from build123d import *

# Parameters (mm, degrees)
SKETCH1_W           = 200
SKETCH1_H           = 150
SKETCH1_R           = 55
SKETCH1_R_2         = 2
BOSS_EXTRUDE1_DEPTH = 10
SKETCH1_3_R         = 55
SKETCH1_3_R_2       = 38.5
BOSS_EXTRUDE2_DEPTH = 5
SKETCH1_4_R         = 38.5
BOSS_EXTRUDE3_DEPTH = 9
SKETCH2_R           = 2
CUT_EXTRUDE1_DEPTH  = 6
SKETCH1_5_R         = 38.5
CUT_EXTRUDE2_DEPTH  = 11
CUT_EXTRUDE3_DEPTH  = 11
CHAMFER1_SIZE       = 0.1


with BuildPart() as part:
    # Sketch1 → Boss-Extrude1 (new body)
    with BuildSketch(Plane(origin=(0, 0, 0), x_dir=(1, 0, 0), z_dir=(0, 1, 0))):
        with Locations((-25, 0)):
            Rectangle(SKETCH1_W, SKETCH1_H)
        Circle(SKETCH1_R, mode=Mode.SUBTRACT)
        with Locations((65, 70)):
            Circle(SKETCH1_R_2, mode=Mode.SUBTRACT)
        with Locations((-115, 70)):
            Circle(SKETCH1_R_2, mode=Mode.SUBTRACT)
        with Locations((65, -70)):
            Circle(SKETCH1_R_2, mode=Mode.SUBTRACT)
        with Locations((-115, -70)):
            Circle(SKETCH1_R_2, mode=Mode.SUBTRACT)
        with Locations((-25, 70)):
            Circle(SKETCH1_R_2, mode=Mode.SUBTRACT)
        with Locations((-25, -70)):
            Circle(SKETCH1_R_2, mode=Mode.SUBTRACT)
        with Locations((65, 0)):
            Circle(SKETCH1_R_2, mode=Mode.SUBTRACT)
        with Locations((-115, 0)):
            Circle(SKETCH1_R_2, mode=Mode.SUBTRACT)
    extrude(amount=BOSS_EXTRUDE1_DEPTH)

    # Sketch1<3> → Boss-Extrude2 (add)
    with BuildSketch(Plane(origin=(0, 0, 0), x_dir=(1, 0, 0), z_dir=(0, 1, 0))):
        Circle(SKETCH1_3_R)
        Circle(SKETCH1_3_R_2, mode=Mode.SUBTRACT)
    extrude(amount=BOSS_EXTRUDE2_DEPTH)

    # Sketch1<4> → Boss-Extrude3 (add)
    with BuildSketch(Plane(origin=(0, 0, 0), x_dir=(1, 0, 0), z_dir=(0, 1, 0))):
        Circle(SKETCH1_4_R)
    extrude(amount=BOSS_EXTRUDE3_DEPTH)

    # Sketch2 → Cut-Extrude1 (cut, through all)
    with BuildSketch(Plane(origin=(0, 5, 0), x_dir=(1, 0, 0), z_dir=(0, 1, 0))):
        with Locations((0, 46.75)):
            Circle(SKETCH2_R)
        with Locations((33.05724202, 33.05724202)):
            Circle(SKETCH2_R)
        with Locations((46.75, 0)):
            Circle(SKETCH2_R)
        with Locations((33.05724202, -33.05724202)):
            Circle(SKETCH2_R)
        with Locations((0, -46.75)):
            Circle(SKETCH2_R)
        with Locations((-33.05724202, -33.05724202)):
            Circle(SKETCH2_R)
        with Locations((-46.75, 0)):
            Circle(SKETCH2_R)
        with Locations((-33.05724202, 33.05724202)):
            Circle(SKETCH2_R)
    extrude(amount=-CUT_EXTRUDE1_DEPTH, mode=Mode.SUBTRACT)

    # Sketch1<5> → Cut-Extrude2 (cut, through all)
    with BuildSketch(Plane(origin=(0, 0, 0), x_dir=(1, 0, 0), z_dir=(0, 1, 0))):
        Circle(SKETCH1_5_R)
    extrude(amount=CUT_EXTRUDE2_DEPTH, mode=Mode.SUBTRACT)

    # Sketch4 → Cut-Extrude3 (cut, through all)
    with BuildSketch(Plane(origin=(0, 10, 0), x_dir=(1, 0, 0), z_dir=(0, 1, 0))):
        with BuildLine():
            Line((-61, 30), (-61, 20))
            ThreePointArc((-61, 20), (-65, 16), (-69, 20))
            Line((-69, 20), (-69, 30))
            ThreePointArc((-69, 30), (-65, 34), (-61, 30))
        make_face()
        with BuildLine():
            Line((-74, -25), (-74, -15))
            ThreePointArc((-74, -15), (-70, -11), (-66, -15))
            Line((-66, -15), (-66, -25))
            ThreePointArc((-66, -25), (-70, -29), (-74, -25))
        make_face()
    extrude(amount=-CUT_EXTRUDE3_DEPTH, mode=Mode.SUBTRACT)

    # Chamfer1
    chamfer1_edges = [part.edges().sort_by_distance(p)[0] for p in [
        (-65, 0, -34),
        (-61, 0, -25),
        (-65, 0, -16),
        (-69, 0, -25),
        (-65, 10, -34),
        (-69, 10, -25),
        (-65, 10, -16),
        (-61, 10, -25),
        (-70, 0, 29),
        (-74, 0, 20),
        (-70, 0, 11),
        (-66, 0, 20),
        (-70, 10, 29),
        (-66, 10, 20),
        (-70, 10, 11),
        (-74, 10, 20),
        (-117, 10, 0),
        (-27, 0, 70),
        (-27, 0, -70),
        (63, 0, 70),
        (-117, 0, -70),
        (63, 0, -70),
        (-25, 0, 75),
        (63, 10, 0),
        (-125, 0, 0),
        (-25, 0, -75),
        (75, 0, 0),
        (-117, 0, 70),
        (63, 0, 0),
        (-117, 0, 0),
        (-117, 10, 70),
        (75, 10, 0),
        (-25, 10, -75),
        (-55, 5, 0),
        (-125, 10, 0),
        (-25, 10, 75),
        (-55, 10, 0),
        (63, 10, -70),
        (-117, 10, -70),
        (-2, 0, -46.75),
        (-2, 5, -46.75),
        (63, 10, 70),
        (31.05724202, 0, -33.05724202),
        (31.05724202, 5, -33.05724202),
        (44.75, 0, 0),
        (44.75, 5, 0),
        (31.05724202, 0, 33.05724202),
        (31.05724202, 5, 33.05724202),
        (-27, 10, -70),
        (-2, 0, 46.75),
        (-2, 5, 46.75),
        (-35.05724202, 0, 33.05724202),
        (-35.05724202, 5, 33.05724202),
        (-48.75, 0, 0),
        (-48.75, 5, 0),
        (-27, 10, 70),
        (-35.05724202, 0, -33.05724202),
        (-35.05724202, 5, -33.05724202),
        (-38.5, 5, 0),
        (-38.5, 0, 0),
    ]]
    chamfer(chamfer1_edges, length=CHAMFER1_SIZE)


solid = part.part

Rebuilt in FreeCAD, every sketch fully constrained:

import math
import FreeCAD as App
import Part
import Sketcher
from FreeCAD import Vector
Q = App.Units.Quantity


def edges_at(feature, points):
    """Names of the edges that pass closest to the given points."""
    edges = feature.Shape.Edges
    near = lambda p: min(range(len(edges)), key=lambda i: edges[i].distToShape(Part.Vertex(*p))[0])
    return sorted({f"Edge{near(p) + 1}" for p in points})


def add_polygon(sketch, points):
    """Adds a closed chain of lines whose ends are joined by coincident constraints."""
    first, n = sketch.GeometryCount, len(points)
    for a, b in zip(points, points[1:] + points[:1]):
        sketch.addGeometry(Part.LineSegment(App.Vector(*a, 0), App.Vector(*b, 0)), False)
    for i in range(n):
        sketch.addConstraint(Sketcher.Constraint("Coincident", first + i, 2, first + (i + 1) % n, 1))

doc = App.newDocument("Part")
params = doc.addObject("Spreadsheet::Sheet", "Params")
for row, (alias, value) in enumerate([
    ("sketch1_diameter", "4 mm"),
    ("sketch1_diameter2", "110 mm"),
    ("sketch1_width", "200 mm"),
    ("sketch1_height", "150 mm"),
    ("pad1_length", "10 mm"),
    ("sketch2_diameter", "110 mm"),
    ("sketch2_diameter2", "77 mm"),
    ("pad2_length", "5 mm"),
    ("sketch3_diameter", "77 mm"),
    ("pad3_length", "9 mm"),
    ("sketch4_diameter", "4 mm"),
    ("sketch5_diameter", "77 mm"),
    ("sketch6_radius", "4 mm"),
    ("sketch6_height", "10 mm"),
    ("chamfer_size", "0.1 mm"),
], start=1):
    params.set(f"A{row}", alias)
    params.set(f"B{row}", "=" + value)
    params.setAlias(f"B{row}", alias)

body = doc.addObject("PartDesign::Body", "Body")

# Sketch on XZ plane
sketch1 = body.newObject("Sketcher::SketchObject", "Sketch")
sketch1.AttachmentSupport = (doc.getObject("XZ_Plane"), [""])
sketch1.MapMode = "FlatFace"
add_polygon(sketch1, [(-125, -75), (-125, 75), (75, 75), (75, -75)])  # lines 0-3
sketch1.addGeometry(Part.Circle(Vector(-115, 70, 0), Vector(0, 0, 1), 2), False)  # 4
sketch1.addGeometry(Part.Circle(Vector(-25, 70, 0), Vector(0, 0, 1), 2), False)  # 5
sketch1.addGeometry(Part.Circle(Vector(65, 70, 0), Vector(0, 0, 1), 2), False)  # 6
sketch1.addGeometry(Part.Circle(Vector(-115, 0, 0), Vector(0, 0, 1), 2), False)  # 7
sketch1.addGeometry(Part.Circle(Vector(-115, -70, 0), Vector(0, 0, 1), 2), False)  # 8
sketch1.addGeometry(Part.Circle(Vector(0, 0, 0), Vector(0, 0, 1), 55), False)  # 9
sketch1.addGeometry(Part.Circle(Vector(65, 0, 0), Vector(0, 0, 1), 2), False)  # 10
sketch1.addGeometry(Part.Circle(Vector(-25, -70, 0), Vector(0, 0, 1), 2), False)  # 11
sketch1.addGeometry(Part.Circle(Vector(65, -70, 0), Vector(0, 0, 1), 2), False)  # 12
sketch1.addConstraint([
    Sketcher.Constraint("Vertical", 0),
    Sketcher.Constraint("Horizontal", 1),
    Sketcher.Constraint("Vertical", 2),
    Sketcher.Constraint("Horizontal", 3),
    Sketcher.Constraint("Coincident", 9, 3, -1, 1),
    Sketcher.Constraint("Equal", 4, 5),
    Sketcher.Constraint("Equal", 5, 6),
    Sketcher.Constraint("Equal", 6, 7),
    Sketcher.Constraint("Equal", 7, 8),
    Sketcher.Constraint("Equal", 8, 10),
    Sketcher.Constraint("Equal", 10, 11),
    Sketcher.Constraint("Equal", 11, 12),
    Sketcher.Constraint("Symmetric", 4, 3, 8, 3, -1),
    Sketcher.Constraint("Symmetric", 5, 3, 11, 3, -1),
    Sketcher.Constraint("Symmetric", 6, 3, 12, 3, -1),
    Sketcher.Constraint("PointOnObject", 7, 3, -1),
    Sketcher.Constraint("PointOnObject", 10, 3, -1),
    Sketcher.Constraint("Horizontal", 4, 3, 5, 3),
    Sketcher.Constraint("Horizontal", 5, 3, 6, 3),
    Sketcher.Constraint("Vertical", 4, 3, 7, 3),
    Sketcher.Constraint("Vertical", 6, 3, 10, 3),
    Sketcher.Constraint("Diameter", 4, Q("4 mm")),
    Sketcher.Constraint("Diameter", 9, Q("110 mm")),
    Sketcher.Constraint("DistanceX", 1, 1, 1, 2, Q("200 mm")),
    Sketcher.Constraint("DistanceY", 0, 1, 0, 2, Q("150 mm")),
    Sketcher.Constraint("DistanceX", 4, 3, -1, 1, Q("115 mm")),
    Sketcher.Constraint("DistanceY", -1, 1, 4, 3, Q("70 mm")),
    Sketcher.Constraint("DistanceX", 5, 3, -1, 1, Q("25 mm")),
    Sketcher.Constraint("DistanceX", -1, 1, 6, 3, Q("65 mm")),
    Sketcher.Constraint("DistanceX", 0, 2, -1, 1, Q("125 mm")),
    Sketcher.Constraint("DistanceY", -1, 1, 0, 2, Q("75 mm")),
])
sketch1.setExpression("Constraints[25]", "Params.sketch1_diameter")
sketch1.setExpression("Constraints[26]", "Params.sketch1_diameter2")
sketch1.setExpression("Constraints[27]", "Params.sketch1_width")
sketch1.setExpression("Constraints[28]", "Params.sketch1_height")
pad1 = body.newObject("PartDesign::Pad", "Pad")
pad1.Profile = sketch1
pad1.setExpression("Length", "Params.pad1_length")
pad1.Reversed = True

# Sketch on XZ plane
sketch2 = body.newObject("Sketcher::SketchObject", "Sketch001")
sketch2.AttachmentSupport = (doc.getObject("XZ_Plane"), [""])
sketch2.MapMode = "FlatFace"
sketch2.addGeometry([
    Part.Circle(Vector(0, 0, 0), Vector(0, 0, 1), 55),
    Part.Circle(Vector(0, 0, 0), Vector(0, 0, 1), 38),
], False)
sketch2.addConstraint([
    Sketcher.Constraint("Coincident", 0, 3, -1, 1),
    Sketcher.Constraint("Coincident", 1, 3, -1, 1),
    Sketcher.Constraint("Diameter", 0, Q("110 mm")),
    Sketcher.Constraint("Diameter", 1, Q("77 mm")),
])
sketch2.setExpression("Constraints[2]", "Params.sketch2_diameter")
sketch2.setExpression("Constraints[3]", "Params.sketch2_diameter2")
pad2 = body.newObject("PartDesign::Pad", "Pad001")
pad2.Profile = sketch2
pad2.setExpression("Length", "Params.pad2_length")
pad2.Reversed = True

# Sketch on XZ plane
sketch3 = body.newObject("Sketcher::SketchObject", "Sketch002")
sketch3.AttachmentSupport = (doc.getObject("XZ_Plane"), [""])
sketch3.MapMode = "FlatFace"
sketch3.addGeometry(Part.Circle(Vector(0, 0, 0), Vector(0, 0, 1), 38), False)
sketch3.addConstraint([
    Sketcher.Constraint("Coincident", 0, 3, -1, 1),
    Sketcher.Constraint("Diameter", 0, Q("77 mm")),
])
sketch3.setExpression("Constraints[1]", "Params.sketch3_diameter")
pad3 = body.newObject("PartDesign::Pad", "Pad002")
pad3.Profile = sketch3
pad3.setExpression("Length", "Params.pad3_length")
pad3.Reversed = True

# Sketch on XZ plane
sketch4 = body.newObject("Sketcher::SketchObject", "Sketch003")
sketch4.AttachmentSupport = (doc.getObject("XZ_Plane"), [""])
sketch4.MapMode = "FlatFace"
sketch4.AttachmentOffset = App.Placement(Vector(0, 0, -5), App.Rotation())
sketch4.addGeometry([
    Part.Circle(Vector(0, -46.8, 0), Vector(0, 0, 1), 2),  # 0
    Part.Circle(Vector(33.1, -33.1, 0), Vector(0, 0, 1), 2),  # 1
    Part.Circle(Vector(46.8, 0, 0), Vector(0, 0, 1), 2),  # 2
    Part.Circle(Vector(33.1, 33.1, 0), Vector(0, 0, 1), 2),  # 3
    Part.Circle(Vector(0, 46.8, 0), Vector(0, 0, 1), 2),  # 4
    Part.Circle(Vector(-33.1, 33.1, 0), Vector(0, 0, 1), 2),  # 5
    Part.Circle(Vector(-46.8, 0, 0), Vector(0, 0, 1), 2),  # 6
    Part.Circle(Vector(-33.1, -33.1, 0), Vector(0, 0, 1), 2),  # 7
], False)
sketch4.addConstraint([
    Sketcher.Constraint("Equal", 0, 1),
    Sketcher.Constraint("Equal", 1, 2),
    Sketcher.Constraint("Equal", 2, 3),
    Sketcher.Constraint("Equal", 3, 4),
    Sketcher.Constraint("Equal", 4, 5),
    Sketcher.Constraint("Equal", 5, 6),
    Sketcher.Constraint("Equal", 6, 7),
    Sketcher.Constraint("Symmetric", 0, 3, 4, 3, -1, 1),
    Sketcher.Constraint("Symmetric", 1, 3, 5, 3, -1, 1),
    Sketcher.Constraint("Symmetric", 2, 3, 6, 3, -1, 1),
    Sketcher.Constraint("Symmetric", 3, 3, 7, 3, -1, 1),
    Sketcher.Constraint("Symmetric", 3, 3, 5, 3, -2),
    Sketcher.Constraint("PointOnObject", 0, 3, -2),
    Sketcher.Constraint("PointOnObject", 2, 3, -1),
    Sketcher.Constraint("Diameter", 0, Q("4 mm")),
    Sketcher.Constraint("DistanceY", 0, 3, 4, 3, Q("93.5 mm")),
    Sketcher.Constraint("DistanceX", -1, 1, 2, 3, Q("46.75 mm")),
    Sketcher.Constraint("DistanceX", -1, 1, 1, 3, Q("33.057242 mm")),
    Sketcher.Constraint("DistanceY", 1, 3, -1, 1, Q("33.057242 mm")),
])
sketch4.setExpression("Constraints[14]", "Params.sketch4_diameter")
pocket1 = body.newObject("PartDesign::Pocket", "Pocket")
pocket1.Profile = sketch4
pocket1.Type = "ThroughAll"
pocket1.Reversed = True

# Sketch on XZ plane
sketch5 = body.newObject("Sketcher::SketchObject", "Sketch004")
sketch5.AttachmentSupport = (doc.getObject("XZ_Plane"), [""])
sketch5.MapMode = "FlatFace"
sketch5.addGeometry(Part.Circle(Vector(0, 0, 0), Vector(0, 0, 1), 38), False)
sketch5.addConstraint([
    Sketcher.Constraint("Coincident", 0, 3, -1, 1),
    Sketcher.Constraint("Diameter", 0, Q("77 mm")),
])
sketch5.setExpression("Constraints[1]", "Params.sketch5_diameter")
pocket2 = body.newObject("PartDesign::Pocket", "Pocket001")
pocket2.Profile = sketch5
pocket2.Type = "ThroughAll"

# Sketch on XZ plane
sketch6 = body.newObject("Sketcher::SketchObject", "Sketch005")
sketch6.AttachmentSupport = (doc.getObject("XZ_Plane"), [""])
sketch6.MapMode = "FlatFace"
sketch6.AttachmentOffset = App.Placement(Vector(0, 0, -10), App.Rotation())
sketch6.addGeometry([
    Part.LineSegment(Vector(-61, -20, 0), Vector(-61, -30, 0)),  # 0
    Part.ArcOfCircle(Part.Circle(Vector(-65, -30, 0), Vector(0, 0, 1), 4), math.radians(180), math.radians(360)),  # 1
    Part.LineSegment(Vector(-69, -30, 0), Vector(-69, -20, 0)),  # 2
    Part.ArcOfCircle(Part.Circle(Vector(-65, -20, 0), Vector(0, 0, 1), 4), math.radians(0), math.radians(180)),  # 3
    Part.LineSegment(Vector(-74, 15, 0), Vector(-74, 25, 0)),  # 4
    Part.ArcOfCircle(Part.Circle(Vector(-70, 25, 0), Vector(0, 0, 1), 4), math.radians(0), math.radians(180)),  # 5
    Part.LineSegment(Vector(-66, 25, 0), Vector(-66, 15, 0)),  # 6
    Part.ArcOfCircle(Part.Circle(Vector(-70, 15, 0), Vector(0, 0, 1), 4), math.radians(180), math.radians(360)),  # 7
], False)
sketch6.addConstraint([
    Sketcher.Constraint("Tangent", 0, 2, 1, 2),
    Sketcher.Constraint("Tangent", 1, 1, 2, 1),
    Sketcher.Constraint("Tangent", 2, 2, 3, 2),
    Sketcher.Constraint("Tangent", 3, 1, 0, 1),
    Sketcher.Constraint("Tangent", 4, 2, 5, 2),
    Sketcher.Constraint("Tangent", 5, 1, 6, 1),
    Sketcher.Constraint("Tangent", 6, 2, 7, 2),
    Sketcher.Constraint("Tangent", 7, 1, 4, 1),
    Sketcher.Constraint("Vertical", 0),
    Sketcher.Constraint("Vertical", 2),
    Sketcher.Constraint("Vertical", 4),
    Sketcher.Constraint("Vertical", 6),
    Sketcher.Constraint("Equal", 3, 5),
    Sketcher.Constraint("Equal", 2, 4),
    Sketcher.Constraint("Radius", 1, Q("4 mm")),
    Sketcher.Constraint("DistanceY", 0, 2, 0, 1, Q("10 mm")),
    Sketcher.Constraint("DistanceX", 1, 3, -1, 1, Q("65 mm")),
    Sketcher.Constraint("DistanceY", 1, 3, -1, 1, Q("30 mm")),
    Sketcher.Constraint("DistanceX", 5, 3, -1, 1, Q("70 mm")),
    Sketcher.Constraint("DistanceY", -1, 1, 5, 3, Q("25 mm")),
])
sketch6.setExpression("Constraints[14]", "Params.sketch6_radius")
sketch6.setExpression("Constraints[15]", "Params.sketch6_height")
pocket3 = body.newObject("PartDesign::Pocket", "Pocket002")
pocket3.Profile = sketch6
pocket3.Type = "ThroughAll"
pocket3.Reversed = True
doc.recompute()

chamfer = body.newObject("PartDesign::Chamfer", "Chamfer")
chamfer.Base = (pocket3, edges_at(pocket3, [
    (-65, 0, -34),
    (-61, 0, -25),
    (-65, 0, -16),
    (-69, 0, -25),
    (-65, 10, -34),
    (-69, 10, -25),
    (-65, 10, -16),
    (-61, 10, -25),
    (-70, 0, 29),
    (-74, 0, 20),
    (-70, 0, 11),
    (-66, 0, 20),
    (-70, 10, 29),
    (-66, 10, 20),
    (-70, 10, 11),
    (-74, 10, 20),
    (-117, 10, 0),
    (-27, 0, 70),
    (-27, 0, -70),
    (63, 0, 70),
    (-117, 0, -70),
    (63, 0, -70),
    (-25, 0, 75),
    (63, 10, 0),
    (-125, 0, 0),
    (-25, 0, -75),
    (75, 0, 0),
    (-117, 0, 70),
    (63, 0, 0),
    (-117, 0, 0),
    (-117, 10, 70),
    (75, 10, 0),
    (-25, 10, -75),
    (-55, 5, 0),
    (-125, 10, 0),
    (-25, 10, 75),
    (-55, 10, 0),
    (63, 10, -70),
    (-117, 10, -70),
    (-2, 0, -46.75),
    (-2, 5, -46.75),
    (63, 10, 70),
    (31.057, 0, -33.057),
    (31.057, 5, -33.057),
    (44.75, 0, 0),
    (44.75, 5, 0),
    (31.057, 0, 33.057),
    (31.057, 5, 33.057),
    (-27, 10, -70),
    (-2, 0, 46.75),
    (-2, 5, 46.75),
    (-35.057, 0, 33.057),
    (-35.057, 5, 33.057),
    (-48.75, 0, 0),
    (-48.75, 5, 0),
    (-27, 10, 70),
    (-35.057, 0, -33.057),
    (-35.057, 5, -33.057),
    (-38.5, 5, 0),
    (-38.5, 0, 0),
]))
chamfer.setExpression("Size", "Params.chamfer_size")

doc.recompute()
